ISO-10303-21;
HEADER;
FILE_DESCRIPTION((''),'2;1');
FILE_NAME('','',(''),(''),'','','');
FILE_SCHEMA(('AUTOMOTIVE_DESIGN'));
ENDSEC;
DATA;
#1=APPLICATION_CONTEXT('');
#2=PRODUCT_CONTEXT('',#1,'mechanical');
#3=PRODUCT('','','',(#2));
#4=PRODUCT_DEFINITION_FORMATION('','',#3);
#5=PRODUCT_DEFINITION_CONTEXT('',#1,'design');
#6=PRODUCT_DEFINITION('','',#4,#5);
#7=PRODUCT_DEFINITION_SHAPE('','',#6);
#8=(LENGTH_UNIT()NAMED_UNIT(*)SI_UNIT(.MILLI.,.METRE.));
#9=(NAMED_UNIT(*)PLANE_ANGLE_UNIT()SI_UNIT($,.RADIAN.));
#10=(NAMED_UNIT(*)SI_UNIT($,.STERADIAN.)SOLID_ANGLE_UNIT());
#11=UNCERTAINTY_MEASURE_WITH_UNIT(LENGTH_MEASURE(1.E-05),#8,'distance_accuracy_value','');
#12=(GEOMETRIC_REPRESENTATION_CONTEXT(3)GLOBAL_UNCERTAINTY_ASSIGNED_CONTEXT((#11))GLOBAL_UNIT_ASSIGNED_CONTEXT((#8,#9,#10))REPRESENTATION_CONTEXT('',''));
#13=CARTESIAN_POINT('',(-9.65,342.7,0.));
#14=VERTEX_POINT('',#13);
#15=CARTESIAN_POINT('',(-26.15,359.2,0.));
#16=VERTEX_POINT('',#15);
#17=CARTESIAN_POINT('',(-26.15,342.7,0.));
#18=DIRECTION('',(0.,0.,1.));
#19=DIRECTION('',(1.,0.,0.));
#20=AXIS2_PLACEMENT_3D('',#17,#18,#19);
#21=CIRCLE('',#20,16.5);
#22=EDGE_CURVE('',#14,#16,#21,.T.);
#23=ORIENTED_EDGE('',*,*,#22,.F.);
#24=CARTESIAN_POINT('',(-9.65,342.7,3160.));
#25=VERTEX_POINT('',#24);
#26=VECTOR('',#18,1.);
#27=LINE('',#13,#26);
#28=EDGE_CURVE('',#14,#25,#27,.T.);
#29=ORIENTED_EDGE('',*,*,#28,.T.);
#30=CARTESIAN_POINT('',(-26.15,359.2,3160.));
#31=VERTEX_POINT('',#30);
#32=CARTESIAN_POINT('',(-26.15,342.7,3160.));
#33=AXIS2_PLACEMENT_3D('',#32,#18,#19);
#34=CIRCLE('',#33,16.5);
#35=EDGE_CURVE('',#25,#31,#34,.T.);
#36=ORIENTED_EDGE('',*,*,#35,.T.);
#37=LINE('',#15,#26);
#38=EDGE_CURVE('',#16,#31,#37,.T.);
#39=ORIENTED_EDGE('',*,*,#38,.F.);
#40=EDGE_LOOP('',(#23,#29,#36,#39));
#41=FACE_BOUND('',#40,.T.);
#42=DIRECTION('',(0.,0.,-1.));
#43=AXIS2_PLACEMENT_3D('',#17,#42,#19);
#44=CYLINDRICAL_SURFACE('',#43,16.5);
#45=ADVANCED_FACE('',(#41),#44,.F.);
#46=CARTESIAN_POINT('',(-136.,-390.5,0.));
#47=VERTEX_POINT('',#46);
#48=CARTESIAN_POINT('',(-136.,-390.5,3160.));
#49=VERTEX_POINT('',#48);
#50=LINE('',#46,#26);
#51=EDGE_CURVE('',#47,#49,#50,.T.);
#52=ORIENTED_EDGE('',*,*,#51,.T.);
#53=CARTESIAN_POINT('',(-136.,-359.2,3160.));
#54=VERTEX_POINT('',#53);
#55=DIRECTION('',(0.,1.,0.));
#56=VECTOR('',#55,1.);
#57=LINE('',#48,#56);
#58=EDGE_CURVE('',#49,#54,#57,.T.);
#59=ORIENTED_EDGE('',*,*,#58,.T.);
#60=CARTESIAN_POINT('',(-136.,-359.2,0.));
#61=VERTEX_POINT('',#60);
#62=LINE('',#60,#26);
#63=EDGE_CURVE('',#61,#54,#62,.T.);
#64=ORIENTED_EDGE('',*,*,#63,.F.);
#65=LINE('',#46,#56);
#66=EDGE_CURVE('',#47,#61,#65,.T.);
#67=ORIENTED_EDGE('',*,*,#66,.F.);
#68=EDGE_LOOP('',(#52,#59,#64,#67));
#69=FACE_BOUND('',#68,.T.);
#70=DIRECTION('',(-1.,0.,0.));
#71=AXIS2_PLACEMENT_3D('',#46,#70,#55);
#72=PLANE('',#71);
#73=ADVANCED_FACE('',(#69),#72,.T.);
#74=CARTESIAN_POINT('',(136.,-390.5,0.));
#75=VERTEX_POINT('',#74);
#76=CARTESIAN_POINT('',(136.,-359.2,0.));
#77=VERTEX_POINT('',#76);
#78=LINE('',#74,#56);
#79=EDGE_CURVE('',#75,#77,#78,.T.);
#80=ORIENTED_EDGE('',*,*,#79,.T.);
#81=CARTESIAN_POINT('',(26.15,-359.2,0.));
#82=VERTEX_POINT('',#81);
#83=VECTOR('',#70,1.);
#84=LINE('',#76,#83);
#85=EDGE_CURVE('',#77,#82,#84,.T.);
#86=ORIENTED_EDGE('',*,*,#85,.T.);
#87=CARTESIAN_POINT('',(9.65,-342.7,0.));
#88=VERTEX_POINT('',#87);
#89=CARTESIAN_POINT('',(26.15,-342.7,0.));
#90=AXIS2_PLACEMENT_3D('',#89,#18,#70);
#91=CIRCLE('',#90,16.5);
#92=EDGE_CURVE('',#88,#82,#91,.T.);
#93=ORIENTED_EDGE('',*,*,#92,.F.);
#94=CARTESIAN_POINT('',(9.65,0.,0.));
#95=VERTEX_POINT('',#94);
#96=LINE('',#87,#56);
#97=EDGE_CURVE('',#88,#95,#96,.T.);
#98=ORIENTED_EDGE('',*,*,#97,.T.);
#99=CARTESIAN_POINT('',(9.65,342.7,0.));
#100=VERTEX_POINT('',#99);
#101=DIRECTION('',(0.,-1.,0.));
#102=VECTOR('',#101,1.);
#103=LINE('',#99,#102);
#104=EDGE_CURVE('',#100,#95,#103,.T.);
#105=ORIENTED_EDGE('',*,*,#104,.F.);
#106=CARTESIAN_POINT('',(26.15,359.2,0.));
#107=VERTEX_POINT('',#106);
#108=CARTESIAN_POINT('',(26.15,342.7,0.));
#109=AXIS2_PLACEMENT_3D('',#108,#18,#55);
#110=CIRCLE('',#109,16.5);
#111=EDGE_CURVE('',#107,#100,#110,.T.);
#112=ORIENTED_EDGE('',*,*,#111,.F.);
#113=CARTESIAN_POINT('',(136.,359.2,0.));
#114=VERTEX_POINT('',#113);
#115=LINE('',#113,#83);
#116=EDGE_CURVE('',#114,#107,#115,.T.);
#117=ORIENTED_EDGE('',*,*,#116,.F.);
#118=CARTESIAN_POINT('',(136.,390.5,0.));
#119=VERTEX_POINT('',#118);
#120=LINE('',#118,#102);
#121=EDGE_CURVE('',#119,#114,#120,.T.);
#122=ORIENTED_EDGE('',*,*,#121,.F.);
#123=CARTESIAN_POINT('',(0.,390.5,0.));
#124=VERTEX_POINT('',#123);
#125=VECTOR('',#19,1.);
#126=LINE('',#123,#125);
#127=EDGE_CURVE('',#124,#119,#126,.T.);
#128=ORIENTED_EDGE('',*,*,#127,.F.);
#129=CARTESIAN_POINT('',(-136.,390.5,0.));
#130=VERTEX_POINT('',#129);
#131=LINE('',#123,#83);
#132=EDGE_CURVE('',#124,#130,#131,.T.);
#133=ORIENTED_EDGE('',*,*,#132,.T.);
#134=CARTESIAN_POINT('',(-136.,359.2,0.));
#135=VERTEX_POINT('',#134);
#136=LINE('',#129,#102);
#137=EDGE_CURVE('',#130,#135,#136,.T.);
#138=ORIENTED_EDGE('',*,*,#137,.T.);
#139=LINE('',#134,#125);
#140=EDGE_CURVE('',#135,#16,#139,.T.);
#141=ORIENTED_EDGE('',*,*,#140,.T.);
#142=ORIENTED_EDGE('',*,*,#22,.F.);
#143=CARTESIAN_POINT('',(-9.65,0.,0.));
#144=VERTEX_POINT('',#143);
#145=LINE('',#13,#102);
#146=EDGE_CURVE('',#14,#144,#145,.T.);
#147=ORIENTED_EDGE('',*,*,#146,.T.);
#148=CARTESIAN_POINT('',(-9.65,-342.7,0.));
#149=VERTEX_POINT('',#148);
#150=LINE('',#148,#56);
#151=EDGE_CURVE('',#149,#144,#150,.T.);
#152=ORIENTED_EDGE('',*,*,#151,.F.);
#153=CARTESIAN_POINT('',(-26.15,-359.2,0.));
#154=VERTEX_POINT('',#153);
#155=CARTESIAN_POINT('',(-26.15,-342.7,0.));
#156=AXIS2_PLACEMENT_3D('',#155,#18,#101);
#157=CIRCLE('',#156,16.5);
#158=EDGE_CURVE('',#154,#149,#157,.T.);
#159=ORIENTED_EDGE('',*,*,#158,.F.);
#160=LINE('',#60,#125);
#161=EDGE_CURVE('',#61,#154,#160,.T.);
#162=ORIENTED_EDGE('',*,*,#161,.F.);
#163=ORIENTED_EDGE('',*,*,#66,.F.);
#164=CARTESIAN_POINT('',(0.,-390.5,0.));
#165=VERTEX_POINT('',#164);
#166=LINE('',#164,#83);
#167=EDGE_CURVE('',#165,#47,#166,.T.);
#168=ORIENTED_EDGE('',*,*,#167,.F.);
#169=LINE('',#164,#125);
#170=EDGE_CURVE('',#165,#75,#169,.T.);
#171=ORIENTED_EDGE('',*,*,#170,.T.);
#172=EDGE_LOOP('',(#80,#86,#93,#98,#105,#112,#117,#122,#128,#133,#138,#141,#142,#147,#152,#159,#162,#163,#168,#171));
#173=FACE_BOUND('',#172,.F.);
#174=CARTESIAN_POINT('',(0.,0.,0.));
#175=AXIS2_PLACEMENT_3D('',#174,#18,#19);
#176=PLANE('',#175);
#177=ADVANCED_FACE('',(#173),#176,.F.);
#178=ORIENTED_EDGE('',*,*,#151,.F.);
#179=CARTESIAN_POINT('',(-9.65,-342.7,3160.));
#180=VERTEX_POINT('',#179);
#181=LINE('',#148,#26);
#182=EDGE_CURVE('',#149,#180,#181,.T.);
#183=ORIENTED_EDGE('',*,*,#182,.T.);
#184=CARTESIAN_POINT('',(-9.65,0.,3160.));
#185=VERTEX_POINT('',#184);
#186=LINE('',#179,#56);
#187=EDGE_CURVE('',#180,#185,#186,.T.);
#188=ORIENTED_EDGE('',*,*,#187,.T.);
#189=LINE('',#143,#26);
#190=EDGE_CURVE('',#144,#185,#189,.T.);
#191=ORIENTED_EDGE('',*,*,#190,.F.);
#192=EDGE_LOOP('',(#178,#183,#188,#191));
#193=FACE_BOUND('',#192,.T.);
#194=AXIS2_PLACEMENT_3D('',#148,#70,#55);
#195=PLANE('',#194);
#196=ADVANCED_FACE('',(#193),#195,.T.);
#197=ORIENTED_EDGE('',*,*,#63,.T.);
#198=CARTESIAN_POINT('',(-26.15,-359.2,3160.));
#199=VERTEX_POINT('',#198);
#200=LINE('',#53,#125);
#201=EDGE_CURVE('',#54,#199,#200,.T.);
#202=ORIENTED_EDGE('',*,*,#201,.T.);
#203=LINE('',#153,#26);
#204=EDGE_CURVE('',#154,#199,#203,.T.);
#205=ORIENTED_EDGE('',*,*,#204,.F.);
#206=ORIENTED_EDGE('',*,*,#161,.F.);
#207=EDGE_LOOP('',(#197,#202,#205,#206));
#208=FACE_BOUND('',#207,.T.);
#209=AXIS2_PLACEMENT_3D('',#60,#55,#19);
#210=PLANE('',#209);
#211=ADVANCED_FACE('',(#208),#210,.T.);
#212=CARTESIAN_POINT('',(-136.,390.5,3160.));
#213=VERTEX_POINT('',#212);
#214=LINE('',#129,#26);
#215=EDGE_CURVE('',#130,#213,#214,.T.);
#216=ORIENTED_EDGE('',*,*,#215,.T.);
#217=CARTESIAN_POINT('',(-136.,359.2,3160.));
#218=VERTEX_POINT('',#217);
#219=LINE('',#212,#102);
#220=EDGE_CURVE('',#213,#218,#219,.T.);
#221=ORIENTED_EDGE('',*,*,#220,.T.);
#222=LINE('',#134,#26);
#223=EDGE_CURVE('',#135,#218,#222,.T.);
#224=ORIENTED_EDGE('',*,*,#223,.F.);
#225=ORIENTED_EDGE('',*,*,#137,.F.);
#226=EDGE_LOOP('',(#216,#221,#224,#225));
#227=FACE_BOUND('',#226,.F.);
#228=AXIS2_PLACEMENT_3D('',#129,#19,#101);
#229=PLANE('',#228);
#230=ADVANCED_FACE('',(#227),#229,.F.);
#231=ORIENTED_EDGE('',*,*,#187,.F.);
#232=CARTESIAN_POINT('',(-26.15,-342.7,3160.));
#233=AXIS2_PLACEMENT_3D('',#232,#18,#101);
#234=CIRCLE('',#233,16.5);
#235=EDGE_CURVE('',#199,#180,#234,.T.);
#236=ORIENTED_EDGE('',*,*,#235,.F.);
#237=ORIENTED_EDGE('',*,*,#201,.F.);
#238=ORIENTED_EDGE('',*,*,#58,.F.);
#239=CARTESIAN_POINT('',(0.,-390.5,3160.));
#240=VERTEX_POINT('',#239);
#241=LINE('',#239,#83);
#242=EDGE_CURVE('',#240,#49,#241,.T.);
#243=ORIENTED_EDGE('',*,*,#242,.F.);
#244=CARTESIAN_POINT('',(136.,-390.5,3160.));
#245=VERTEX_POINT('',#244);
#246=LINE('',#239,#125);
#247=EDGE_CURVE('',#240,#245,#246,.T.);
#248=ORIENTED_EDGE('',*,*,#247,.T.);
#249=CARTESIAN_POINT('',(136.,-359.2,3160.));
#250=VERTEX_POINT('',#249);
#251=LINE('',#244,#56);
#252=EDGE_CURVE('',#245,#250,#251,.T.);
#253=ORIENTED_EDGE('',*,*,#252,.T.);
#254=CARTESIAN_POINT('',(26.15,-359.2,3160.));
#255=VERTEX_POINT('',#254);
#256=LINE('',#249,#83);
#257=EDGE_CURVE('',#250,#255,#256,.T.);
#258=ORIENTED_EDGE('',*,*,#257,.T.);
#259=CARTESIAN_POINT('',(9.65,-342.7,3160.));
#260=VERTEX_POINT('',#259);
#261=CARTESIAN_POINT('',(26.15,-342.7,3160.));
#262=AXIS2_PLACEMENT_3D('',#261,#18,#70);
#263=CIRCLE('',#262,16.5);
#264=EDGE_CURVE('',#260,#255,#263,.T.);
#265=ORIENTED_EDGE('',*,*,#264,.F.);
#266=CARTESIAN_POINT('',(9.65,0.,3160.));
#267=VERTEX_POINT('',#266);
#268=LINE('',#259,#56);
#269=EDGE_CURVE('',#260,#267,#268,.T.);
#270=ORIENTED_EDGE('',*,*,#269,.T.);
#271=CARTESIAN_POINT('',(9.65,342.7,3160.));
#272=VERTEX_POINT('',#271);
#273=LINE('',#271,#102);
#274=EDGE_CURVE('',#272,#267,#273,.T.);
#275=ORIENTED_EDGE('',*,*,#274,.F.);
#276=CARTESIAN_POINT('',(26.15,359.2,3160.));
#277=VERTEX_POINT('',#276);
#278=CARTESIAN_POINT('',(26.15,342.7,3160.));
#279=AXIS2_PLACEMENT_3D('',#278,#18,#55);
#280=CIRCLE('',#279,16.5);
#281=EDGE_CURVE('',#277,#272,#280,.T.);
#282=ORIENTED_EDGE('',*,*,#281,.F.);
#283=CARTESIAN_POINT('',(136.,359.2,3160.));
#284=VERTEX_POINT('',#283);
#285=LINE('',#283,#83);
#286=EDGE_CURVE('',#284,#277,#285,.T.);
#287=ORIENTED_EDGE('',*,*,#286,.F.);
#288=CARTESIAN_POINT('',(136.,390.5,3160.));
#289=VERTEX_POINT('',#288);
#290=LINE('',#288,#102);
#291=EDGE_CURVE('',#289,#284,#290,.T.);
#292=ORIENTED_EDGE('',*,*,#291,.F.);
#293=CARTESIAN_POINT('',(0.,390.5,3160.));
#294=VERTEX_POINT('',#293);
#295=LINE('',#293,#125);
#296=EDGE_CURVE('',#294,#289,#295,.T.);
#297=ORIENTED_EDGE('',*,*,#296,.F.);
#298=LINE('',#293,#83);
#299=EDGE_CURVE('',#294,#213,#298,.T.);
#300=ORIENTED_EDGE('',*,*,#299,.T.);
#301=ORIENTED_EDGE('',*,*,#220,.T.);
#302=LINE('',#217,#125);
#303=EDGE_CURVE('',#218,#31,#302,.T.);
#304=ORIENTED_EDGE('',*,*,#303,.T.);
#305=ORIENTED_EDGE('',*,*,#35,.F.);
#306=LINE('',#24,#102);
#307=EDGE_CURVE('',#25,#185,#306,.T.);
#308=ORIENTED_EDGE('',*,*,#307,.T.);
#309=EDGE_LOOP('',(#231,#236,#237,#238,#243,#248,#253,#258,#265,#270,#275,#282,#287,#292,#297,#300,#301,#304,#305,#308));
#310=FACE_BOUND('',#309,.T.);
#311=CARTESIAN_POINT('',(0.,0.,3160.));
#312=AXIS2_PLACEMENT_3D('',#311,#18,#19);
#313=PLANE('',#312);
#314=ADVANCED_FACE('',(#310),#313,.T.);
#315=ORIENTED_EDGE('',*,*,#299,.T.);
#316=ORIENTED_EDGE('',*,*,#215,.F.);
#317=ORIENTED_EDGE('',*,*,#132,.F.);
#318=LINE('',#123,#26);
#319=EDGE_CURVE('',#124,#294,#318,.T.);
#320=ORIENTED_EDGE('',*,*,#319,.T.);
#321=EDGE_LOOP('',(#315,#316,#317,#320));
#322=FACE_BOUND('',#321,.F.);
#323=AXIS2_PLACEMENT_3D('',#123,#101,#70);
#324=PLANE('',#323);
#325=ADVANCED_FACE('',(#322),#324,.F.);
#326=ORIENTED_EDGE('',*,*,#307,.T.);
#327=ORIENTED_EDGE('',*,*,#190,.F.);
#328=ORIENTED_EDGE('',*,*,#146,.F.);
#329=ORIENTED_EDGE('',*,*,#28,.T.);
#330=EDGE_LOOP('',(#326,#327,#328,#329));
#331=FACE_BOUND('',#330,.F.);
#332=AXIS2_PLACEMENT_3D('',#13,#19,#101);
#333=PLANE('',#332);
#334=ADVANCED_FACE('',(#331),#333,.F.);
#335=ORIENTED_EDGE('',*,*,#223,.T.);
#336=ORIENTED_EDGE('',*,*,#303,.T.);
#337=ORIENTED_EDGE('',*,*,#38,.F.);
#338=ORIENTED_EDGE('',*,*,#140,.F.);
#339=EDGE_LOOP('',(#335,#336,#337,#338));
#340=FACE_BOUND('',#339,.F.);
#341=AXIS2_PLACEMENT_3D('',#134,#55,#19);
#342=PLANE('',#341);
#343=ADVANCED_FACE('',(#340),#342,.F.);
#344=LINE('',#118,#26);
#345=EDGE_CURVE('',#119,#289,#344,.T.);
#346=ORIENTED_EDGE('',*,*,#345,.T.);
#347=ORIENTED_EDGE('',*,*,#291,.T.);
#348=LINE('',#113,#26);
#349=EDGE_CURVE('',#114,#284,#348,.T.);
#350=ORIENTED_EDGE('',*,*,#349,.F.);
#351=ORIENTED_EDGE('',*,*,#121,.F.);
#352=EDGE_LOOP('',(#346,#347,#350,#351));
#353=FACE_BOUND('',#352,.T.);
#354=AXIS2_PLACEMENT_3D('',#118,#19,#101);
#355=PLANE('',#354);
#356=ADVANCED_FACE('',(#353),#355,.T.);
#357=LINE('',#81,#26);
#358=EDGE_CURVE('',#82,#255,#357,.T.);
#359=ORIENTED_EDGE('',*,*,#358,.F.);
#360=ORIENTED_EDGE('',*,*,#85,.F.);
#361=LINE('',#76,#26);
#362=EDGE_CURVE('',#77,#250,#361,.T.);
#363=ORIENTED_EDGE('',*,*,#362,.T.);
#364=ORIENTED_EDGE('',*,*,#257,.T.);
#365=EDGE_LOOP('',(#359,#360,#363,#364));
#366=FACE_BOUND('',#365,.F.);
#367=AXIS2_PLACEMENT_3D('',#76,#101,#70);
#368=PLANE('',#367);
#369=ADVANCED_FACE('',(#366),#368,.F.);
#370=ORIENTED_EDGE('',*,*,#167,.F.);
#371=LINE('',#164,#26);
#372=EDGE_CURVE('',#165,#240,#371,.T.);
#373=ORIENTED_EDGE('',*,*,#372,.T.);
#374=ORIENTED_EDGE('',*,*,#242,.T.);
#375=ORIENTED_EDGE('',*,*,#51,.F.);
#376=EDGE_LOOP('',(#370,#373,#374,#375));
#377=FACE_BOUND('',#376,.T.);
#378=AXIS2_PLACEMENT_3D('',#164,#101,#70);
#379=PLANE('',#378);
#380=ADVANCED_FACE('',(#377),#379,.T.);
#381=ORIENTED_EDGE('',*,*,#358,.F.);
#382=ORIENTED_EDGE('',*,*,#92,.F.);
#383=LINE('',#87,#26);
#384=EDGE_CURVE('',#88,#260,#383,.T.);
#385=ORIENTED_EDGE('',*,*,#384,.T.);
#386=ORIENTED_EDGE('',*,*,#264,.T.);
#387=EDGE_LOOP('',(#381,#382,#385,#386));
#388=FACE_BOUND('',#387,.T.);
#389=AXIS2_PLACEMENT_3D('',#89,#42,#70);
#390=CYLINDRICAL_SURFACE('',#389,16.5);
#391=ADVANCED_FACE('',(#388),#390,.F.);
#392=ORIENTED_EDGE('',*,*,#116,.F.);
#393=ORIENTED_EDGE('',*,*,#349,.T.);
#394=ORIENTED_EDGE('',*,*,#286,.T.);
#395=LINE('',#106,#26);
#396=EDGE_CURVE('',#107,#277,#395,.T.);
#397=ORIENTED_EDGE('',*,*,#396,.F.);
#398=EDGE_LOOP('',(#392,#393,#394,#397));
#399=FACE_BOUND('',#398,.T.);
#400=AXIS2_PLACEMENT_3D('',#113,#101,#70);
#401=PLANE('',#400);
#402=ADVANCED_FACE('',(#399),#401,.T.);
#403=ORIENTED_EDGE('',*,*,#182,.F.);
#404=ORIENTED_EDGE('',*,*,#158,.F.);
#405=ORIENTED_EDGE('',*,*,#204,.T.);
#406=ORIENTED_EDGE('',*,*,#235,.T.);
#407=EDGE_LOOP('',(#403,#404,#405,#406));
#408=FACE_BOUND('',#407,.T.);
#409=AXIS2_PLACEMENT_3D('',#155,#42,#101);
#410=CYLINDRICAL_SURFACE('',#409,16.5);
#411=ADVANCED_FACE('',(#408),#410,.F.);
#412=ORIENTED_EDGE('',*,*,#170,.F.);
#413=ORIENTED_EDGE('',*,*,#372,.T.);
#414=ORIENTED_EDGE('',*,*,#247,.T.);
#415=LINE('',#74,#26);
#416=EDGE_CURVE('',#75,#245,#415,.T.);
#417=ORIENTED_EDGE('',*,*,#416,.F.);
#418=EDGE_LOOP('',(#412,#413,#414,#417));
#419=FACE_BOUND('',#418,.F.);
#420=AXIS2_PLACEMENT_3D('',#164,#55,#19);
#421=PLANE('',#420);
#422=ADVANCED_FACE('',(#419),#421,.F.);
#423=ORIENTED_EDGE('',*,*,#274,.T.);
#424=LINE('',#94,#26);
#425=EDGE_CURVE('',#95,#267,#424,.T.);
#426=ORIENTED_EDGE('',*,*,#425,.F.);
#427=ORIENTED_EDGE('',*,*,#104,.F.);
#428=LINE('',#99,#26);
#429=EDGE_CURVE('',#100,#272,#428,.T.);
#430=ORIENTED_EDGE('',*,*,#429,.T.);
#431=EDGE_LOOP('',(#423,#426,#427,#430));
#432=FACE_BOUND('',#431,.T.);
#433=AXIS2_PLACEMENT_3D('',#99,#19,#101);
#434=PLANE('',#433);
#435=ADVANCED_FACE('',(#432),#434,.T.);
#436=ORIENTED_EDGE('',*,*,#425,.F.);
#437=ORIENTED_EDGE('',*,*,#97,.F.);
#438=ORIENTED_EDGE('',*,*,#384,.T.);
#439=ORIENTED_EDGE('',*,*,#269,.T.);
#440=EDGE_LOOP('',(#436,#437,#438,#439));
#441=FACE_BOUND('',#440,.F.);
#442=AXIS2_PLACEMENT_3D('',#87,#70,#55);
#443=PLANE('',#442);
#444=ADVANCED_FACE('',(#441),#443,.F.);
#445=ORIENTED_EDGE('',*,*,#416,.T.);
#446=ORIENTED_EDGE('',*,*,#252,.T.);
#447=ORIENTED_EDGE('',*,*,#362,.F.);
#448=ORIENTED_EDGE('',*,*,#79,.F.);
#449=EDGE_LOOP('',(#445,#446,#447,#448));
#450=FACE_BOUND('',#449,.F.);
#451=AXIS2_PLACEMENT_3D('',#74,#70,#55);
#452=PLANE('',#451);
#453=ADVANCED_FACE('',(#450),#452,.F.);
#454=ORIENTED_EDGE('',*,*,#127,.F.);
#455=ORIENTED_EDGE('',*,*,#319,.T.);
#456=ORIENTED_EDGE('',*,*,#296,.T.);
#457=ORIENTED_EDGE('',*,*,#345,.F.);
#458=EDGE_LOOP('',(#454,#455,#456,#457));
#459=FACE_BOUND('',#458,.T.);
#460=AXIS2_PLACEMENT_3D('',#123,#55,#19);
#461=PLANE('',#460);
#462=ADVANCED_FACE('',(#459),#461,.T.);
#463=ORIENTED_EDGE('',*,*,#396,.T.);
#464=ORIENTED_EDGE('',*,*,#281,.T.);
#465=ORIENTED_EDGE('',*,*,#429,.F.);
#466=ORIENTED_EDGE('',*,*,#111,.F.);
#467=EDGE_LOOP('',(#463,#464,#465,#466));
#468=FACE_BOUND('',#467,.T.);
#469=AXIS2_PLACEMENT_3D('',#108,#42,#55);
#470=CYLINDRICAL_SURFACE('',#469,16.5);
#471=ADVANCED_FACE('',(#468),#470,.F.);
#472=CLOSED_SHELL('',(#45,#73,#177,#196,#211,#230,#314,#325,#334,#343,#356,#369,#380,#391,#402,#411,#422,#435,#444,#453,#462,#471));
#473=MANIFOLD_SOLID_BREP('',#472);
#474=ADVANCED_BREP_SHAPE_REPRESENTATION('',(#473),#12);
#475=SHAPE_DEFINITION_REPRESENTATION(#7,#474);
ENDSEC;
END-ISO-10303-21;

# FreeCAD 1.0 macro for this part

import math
import FreeCAD as App
import Part
import Sketcher
from FreeCAD import Vector

doc = App.newDocument("Part")
body = doc.addObject("PartDesign::Body", "Body")

# Sketch on XY plane
sketch1 = doc.addObject("Sketcher::SketchObject", "Sketch")
body.addObject(sketch1)
sketch1.AttachmentSupport = (doc.XY_Plane, [""])
sketch1.MapMode = "FlatFace"
sketch1.addGeometry([
    Part.LineSegment(Vector(-136, -359.2, 0), Vector(-136, -390.5, 0)),  # 0
    Part.LineSegment(Vector(-136, -390.5, 0), Vector(136, -390.5, 0)),  # 1
    Part.LineSegment(Vector(136, -390.5, 0), Vector(136, -359.2, 0)),  # 2
    Part.LineSegment(Vector(136, -359.2, 0), Vector(26.15, -359.2, 0)),  # 3
    Part.ArcOfCircle(Part.Circle(Vector(26.15, -342.7, 0), Vector(0, 0, 1), 16.5), math.radians(180), math.radians(270)),  # 4
    Part.LineSegment(Vector(9.65, -342.7, 0), Vector(9.65, 342.7, 0)),  # 5
    Part.ArcOfCircle(Part.Circle(Vector(26.15, 342.7, 0), Vector(0, 0, 1), 16.5), math.radians(90), math.radians(180)),  # 6
    Part.LineSegment(Vector(26.15, 359.2, 0), Vector(136, 359.2, 0)),  # 7
    Part.LineSegment(Vector(136, 359.2, 0), Vector(136, 390.5, 0)),  # 8
    Part.LineSegment(Vector(136, 390.5, 0), Vector(-136, 390.5, 0)),  # 9
    Part.LineSegment(Vector(-136, 390.5, 0), Vector(-136, 359.2, 0)),  # 10
    Part.LineSegment(Vector(-136, 359.2, 0), Vector(-26.15, 359.2, 0)),  # 11
    Part.ArcOfCircle(Part.Circle(Vector(-26.15, 342.7, 0), Vector(0, 0, 1), 16.5), math.radians(0), math.radians(90)),  # 12
    Part.LineSegment(Vector(-9.65, 342.7, 0), Vector(-9.65, -342.7, 0)),  # 13
    Part.ArcOfCircle(Part.Circle(Vector(-26.15, -342.7, 0), Vector(0, 0, 1), 16.5), math.radians(-90), math.radians(0)),  # 14
    Part.LineSegment(Vector(-26.15, -359.2, 0), Vector(-136, -359.2, 0)),  # 15
], False)
sketch1.addConstraint([
    Sketcher.Constraint("Coincident", 0, 2, 1, 1),
    Sketcher.Constraint("Coincident", 1, 2, 2, 1),
    Sketcher.Constraint("Coincident", 2, 2, 3, 1),
    Sketcher.Constraint("Tangent", 3, 2, 4, 2),
    Sketcher.Constraint("Tangent", 4, 1, 5, 1),
    Sketcher.Constraint("Tangent", 5, 2, 6, 2),
    Sketcher.Constraint("Tangent", 6, 1, 7, 1),
    Sketcher.Constraint("Coincident", 7, 2, 8, 1),
    Sketcher.Constraint("Coincident", 8, 2, 9, 1),
    Sketcher.Constraint("Coincident", 9, 2, 10, 1),
    Sketcher.Constraint("Coincident", 10, 2, 11, 1),
    Sketcher.Constraint("Tangent", 11, 2, 12, 2),
    Sketcher.Constraint("Tangent", 12, 1, 13, 1),
    Sketcher.Constraint("Tangent", 13, 2, 14, 2),
    Sketcher.Constraint("Tangent", 14, 1, 15, 1),
    Sketcher.Constraint("Coincident", 15, 2, 0, 1),
    Sketcher.Constraint("Vertical", 0),
    Sketcher.Constraint("Horizontal", 1),
    Sketcher.Constraint("Vertical", 2),
    Sketcher.Constraint("Horizontal", 3),
    Sketcher.Constraint("Vertical", 5),
    Sketcher.Constraint("Horizontal", 7),
    Sketcher.Constraint("Vertical", 8),
    Sketcher.Constraint("Horizontal", 9),
    Sketcher.Constraint("Vertical", 10),
    Sketcher.Constraint("Horizontal", 11),
    Sketcher.Constraint("Vertical", 13),
    Sketcher.Constraint("Horizontal", 15),
    Sketcher.Constraint("Equal", 4, 6),
    Sketcher.Constraint("Equal", 6, 12),
    Sketcher.Constraint("Equal", 12, 14),
    Sketcher.Constraint("Symmetric", 4, 3, 12, 3, -1, 1),
    Sketcher.Constraint("Symmetric", 0, 2, 8, 2, -1, 1),
    Sketcher.Constraint("Symmetric", 7, 2, 10, 2, -2),
    Sketcher.Constraint("Symmetric", 2, 2, 15, 2, -2),
    Sketcher.Constraint("Radius", 4, 16.5),
    Sketcher.Constraint("DistanceY", 0, 2, 0, 1, 31.3),
    Sketcher.Constraint("DistanceX", 0, 2, -1, 1, 136.0),
    Sketcher.Constraint("DistanceY", 0, 2, -1, 1, 390.5),
    Sketcher.Constraint("DistanceX", -1, 1, 4, 1, 9.65),
])
pad1 = doc.addObject("PartDesign::Pad", "Pad")
body.addObject(pad1)
pad1.Profile = sketch1
pad1.Length = 3160

doc.recompute()
